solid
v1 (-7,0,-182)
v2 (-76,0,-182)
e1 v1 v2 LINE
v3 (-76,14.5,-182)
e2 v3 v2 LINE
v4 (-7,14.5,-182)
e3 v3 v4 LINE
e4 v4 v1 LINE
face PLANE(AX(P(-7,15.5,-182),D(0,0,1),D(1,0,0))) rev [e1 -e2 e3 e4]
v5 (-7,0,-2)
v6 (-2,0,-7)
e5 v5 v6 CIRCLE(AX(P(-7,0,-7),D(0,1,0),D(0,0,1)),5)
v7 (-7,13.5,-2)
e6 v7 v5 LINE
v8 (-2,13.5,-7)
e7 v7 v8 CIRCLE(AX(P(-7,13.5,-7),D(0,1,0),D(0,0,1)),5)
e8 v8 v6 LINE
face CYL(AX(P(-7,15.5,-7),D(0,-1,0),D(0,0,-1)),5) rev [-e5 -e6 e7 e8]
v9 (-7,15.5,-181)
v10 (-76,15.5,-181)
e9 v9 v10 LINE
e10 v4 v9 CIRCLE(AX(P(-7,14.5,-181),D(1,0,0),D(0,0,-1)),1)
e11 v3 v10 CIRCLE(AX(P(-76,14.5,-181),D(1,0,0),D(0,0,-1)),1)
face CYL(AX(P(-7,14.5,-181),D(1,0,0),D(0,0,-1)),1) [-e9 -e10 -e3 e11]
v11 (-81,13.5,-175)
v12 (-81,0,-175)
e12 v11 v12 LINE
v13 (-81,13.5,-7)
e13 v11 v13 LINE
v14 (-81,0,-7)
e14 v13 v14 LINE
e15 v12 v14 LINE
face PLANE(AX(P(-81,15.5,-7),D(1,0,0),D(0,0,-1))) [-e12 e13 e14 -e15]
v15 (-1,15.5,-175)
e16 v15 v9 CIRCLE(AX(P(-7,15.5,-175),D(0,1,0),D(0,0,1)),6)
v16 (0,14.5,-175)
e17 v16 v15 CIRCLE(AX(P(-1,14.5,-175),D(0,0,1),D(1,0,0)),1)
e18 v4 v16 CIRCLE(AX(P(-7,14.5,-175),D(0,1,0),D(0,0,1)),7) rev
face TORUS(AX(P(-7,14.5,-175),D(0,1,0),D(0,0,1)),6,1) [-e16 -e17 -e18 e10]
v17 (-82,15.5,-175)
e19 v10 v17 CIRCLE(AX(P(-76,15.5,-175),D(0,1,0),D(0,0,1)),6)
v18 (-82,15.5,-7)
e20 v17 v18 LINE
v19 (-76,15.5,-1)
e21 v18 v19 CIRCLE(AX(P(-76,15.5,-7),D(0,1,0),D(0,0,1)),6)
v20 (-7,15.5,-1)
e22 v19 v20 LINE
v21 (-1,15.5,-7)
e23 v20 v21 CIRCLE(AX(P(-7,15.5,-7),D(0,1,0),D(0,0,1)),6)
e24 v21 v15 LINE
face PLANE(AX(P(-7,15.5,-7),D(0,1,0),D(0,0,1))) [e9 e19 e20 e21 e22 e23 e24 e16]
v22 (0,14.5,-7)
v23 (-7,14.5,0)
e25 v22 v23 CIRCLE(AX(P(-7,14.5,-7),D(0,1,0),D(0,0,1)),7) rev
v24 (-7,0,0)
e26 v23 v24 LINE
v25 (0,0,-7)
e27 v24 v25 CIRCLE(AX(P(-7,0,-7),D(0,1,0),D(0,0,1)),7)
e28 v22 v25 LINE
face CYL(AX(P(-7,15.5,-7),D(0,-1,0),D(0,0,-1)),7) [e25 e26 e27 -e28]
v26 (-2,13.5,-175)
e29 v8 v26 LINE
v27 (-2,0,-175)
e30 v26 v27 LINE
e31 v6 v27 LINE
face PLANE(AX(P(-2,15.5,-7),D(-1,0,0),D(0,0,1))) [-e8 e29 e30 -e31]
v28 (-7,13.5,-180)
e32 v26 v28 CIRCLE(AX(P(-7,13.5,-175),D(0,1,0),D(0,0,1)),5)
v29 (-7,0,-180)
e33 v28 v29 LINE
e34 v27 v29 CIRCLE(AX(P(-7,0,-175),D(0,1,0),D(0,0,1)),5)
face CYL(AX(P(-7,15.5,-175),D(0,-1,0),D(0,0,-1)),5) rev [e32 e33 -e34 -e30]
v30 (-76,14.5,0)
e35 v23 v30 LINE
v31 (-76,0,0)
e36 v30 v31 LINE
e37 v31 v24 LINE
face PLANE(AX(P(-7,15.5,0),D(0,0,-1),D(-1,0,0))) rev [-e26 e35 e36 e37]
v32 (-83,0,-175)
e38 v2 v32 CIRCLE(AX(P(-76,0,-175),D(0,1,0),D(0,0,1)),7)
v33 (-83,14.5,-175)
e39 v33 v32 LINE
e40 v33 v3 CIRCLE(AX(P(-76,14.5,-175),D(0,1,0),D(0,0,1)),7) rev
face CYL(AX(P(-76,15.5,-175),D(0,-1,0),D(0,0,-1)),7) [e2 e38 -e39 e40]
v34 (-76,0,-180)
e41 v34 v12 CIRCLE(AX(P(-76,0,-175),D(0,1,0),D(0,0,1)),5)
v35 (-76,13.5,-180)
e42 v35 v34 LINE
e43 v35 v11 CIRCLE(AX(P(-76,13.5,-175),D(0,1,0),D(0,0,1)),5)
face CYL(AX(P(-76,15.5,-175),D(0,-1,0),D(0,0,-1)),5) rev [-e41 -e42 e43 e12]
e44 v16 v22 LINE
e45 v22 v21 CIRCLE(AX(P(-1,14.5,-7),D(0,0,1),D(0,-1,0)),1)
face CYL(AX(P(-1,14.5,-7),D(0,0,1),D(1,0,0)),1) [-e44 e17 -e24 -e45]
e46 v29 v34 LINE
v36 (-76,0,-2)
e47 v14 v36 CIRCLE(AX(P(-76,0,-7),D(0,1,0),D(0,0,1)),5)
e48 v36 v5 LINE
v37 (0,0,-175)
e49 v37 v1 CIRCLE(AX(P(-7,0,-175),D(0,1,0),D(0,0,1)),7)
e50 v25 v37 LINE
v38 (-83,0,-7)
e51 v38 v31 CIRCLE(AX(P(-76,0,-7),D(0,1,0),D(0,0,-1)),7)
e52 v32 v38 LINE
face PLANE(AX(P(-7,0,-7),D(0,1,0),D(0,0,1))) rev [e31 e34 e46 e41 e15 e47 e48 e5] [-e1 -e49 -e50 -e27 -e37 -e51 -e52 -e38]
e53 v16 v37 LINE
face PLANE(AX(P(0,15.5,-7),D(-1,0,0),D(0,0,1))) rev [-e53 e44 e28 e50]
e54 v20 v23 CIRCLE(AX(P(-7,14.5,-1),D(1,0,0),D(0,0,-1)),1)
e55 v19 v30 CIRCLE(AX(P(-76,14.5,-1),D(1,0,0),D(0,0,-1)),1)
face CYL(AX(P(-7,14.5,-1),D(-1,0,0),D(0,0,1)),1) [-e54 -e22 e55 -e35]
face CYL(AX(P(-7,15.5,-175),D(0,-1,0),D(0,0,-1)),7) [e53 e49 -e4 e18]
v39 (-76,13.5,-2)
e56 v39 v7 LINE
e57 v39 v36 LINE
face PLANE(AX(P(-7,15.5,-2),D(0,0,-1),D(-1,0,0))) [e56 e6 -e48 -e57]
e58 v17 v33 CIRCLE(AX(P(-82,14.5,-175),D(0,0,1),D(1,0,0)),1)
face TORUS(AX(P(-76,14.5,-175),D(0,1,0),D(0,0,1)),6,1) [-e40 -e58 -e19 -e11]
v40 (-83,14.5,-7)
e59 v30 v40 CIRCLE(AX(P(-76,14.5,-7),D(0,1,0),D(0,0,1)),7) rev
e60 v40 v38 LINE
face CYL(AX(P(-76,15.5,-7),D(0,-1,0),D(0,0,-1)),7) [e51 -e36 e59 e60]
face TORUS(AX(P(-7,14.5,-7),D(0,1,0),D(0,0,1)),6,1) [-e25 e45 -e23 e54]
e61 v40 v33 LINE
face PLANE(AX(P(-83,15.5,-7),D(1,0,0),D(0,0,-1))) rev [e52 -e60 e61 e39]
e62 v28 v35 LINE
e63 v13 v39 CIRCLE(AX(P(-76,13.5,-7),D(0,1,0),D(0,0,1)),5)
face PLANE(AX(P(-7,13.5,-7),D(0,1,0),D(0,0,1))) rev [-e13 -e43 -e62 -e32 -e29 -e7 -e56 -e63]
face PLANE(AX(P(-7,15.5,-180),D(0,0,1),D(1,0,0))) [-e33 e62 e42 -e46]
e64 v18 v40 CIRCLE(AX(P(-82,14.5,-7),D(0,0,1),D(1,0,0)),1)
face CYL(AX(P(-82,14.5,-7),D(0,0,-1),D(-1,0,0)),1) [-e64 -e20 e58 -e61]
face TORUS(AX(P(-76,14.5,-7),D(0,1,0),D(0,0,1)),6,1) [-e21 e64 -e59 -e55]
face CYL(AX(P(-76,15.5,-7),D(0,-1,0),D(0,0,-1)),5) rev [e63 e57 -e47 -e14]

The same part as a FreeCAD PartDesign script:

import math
import FreeCAD as App
import Part
import Sketcher
Q = App.Units.Quantity


def edges_at(feature, points):
    """Names of the edges that pass closest to the given points."""
    edges = feature.Shape.Edges
    near = lambda p: min(range(len(edges)), key=lambda i: edges[i].distToShape(Part.Vertex(*p))[0])
    return sorted({f"Edge{near(p) + 1}" for p in points})


def faces_at(feature, points):
    """Names of the faces that lie closest to the given points."""
    faces = feature.Shape.Faces
    near = lambda p: min(range(len(faces)), key=lambda i: faces[i].distToShape(Part.Vertex(*p))[0])
    return sorted({f"Face{near(p) + 1}" for p in points})

doc = App.newDocument("Part")
params = doc.addObject("Spreadsheet::Sheet", "Params")
for row, (alias, value) in enumerate([
    ("sketch1_radius", "7 mm"),
    ("sketch1_width", "69 mm"),
    ("sketch1_height", "168 mm"),
    ("pad1_length", "15.5 mm"),
    ("thickness_wall", "2 mm"),
    ("fillet_radius", "1 mm"),
], start=1):
    params.set(f"A{row}", alias)
    params.set(f"B{row}", "=" + value)
    params.setAlias(f"B{row}", alias)

body = doc.addObject("PartDesign::Body", "Body")

# Sketch on XZ plane
sketch1 = body.newObject("Sketcher::SketchObject", "Sketch")
sketch1.AttachmentSupport = (doc.getObject("XZ_Plane"), [""])
sketch1.MapMode = "FlatFace"
sketch1.addGeometry([
    Part.LineSegment(App.Vector(-76, 0, 0), App.Vector(-7, 0, 0)),  # 0
    Part.ArcOfCircle(Part.Circle(App.Vector(-7, -7, 0), App.Vector(0, 0, 1), 7), math.radians(0), math.radians(90)),  # 1
    Part.LineSegment(App.Vector(0, -7, 0), App.Vector(0, -175, 0)),  # 2
    Part.ArcOfCircle(Part.Circle(App.Vector(-7, -175, 0), App.Vector(0, 0, 1), 7), math.radians(-90), math.radians(0)),  # 3
    Part.LineSegment(App.Vector(-7, -182, 0), App.Vector(-76, -182, 0)),  # 4
    Part.ArcOfCircle(Part.Circle(App.Vector(-76, -175, 0), App.Vector(0, 0, 1), 7), math.radians(-180), math.radians(-90)),  # 5
    Part.LineSegment(App.Vector(-83, -175, 0), App.Vector(-83, -7, 0)),  # 6
    Part.ArcOfCircle(Part.Circle(App.Vector(-76, -7, 0), App.Vector(0, 0, 1), 7), math.radians(90), math.radians(180)),  # 7
], False)
sketch1.addConstraint([
    Sketcher.Constraint("Tangent", 0, 2, 1, 2),
    Sketcher.Constraint("Tangent", 1, 1, 2, 1),
    Sketcher.Constraint("Tangent", 2, 2, 3, 2),
    Sketcher.Constraint("Tangent", 3, 1, 4, 1),
    Sketcher.Constraint("Tangent", 4, 2, 5, 2),
    Sketcher.Constraint("Tangent", 5, 1, 6, 1),
    Sketcher.Constraint("Tangent", 6, 2, 7, 2),
    Sketcher.Constraint("Tangent", 7, 1, 0, 1),
    Sketcher.Constraint("Horizontal", 0),
    Sketcher.Constraint("Vertical", 2),
    Sketcher.Constraint("Horizontal", 4),
    Sketcher.Constraint("Vertical", 6),
    Sketcher.Constraint("Equal", 1, 3),
    Sketcher.Constraint("Equal", 3, 5),
    Sketcher.Constraint("Equal", 5, 7),
    Sketcher.Constraint("PointOnObject", 0, 2, -1),
    Sketcher.Constraint("PointOnObject", 1, 1, -2),
    Sketcher.Constraint("Radius", 1, Q("7 mm")),
    Sketcher.Constraint("DistanceX", 0, 1, 0, 2, Q("69 mm")),
    Sketcher.Constraint("DistanceY", 2, 2, 2, 1, Q("168 mm")),
])
sketch1.setExpression("Constraints[17]", "Params.sketch1_radius")
sketch1.setExpression("Constraints[18]", "Params.sketch1_width")
sketch1.setExpression("Constraints[19]", "Params.sketch1_height")
pad1 = body.newObject("PartDesign::Pad", "Pad")
pad1.Profile = sketch1
pad1.setExpression("Length", "Params.pad1_length")
pad1.Reversed = True
doc.recompute()

thickness = body.newObject("PartDesign::Thickness", "Thickness")
thickness.Base = (pad1, faces_at(pad1, [(-41.5, 0, -91)]))
thickness.setExpression("Value", "Params.thickness_wall")
thickness.Reversed = True
thickness.Join = "Intersection"
doc.recompute()

fillet = body.newObject("PartDesign::Fillet", "Fillet")
fillet.Base = (thickness, edges_at(thickness, [
    (-2.05, 15.5, -179.95),
    (-41.5, 15.5, -182),
    (-80.95, 15.5, -179.95),
    (-83, 15.5, -91),
    (-80.95, 15.5, -2.05),
    (-41.5, 15.5, 0),
    (-2.05, 15.5, -2.05),
    (0, 15.5, -91),
]))
fillet.setExpression("Radius", "Params.fillet_radius")

doc.recompute()
